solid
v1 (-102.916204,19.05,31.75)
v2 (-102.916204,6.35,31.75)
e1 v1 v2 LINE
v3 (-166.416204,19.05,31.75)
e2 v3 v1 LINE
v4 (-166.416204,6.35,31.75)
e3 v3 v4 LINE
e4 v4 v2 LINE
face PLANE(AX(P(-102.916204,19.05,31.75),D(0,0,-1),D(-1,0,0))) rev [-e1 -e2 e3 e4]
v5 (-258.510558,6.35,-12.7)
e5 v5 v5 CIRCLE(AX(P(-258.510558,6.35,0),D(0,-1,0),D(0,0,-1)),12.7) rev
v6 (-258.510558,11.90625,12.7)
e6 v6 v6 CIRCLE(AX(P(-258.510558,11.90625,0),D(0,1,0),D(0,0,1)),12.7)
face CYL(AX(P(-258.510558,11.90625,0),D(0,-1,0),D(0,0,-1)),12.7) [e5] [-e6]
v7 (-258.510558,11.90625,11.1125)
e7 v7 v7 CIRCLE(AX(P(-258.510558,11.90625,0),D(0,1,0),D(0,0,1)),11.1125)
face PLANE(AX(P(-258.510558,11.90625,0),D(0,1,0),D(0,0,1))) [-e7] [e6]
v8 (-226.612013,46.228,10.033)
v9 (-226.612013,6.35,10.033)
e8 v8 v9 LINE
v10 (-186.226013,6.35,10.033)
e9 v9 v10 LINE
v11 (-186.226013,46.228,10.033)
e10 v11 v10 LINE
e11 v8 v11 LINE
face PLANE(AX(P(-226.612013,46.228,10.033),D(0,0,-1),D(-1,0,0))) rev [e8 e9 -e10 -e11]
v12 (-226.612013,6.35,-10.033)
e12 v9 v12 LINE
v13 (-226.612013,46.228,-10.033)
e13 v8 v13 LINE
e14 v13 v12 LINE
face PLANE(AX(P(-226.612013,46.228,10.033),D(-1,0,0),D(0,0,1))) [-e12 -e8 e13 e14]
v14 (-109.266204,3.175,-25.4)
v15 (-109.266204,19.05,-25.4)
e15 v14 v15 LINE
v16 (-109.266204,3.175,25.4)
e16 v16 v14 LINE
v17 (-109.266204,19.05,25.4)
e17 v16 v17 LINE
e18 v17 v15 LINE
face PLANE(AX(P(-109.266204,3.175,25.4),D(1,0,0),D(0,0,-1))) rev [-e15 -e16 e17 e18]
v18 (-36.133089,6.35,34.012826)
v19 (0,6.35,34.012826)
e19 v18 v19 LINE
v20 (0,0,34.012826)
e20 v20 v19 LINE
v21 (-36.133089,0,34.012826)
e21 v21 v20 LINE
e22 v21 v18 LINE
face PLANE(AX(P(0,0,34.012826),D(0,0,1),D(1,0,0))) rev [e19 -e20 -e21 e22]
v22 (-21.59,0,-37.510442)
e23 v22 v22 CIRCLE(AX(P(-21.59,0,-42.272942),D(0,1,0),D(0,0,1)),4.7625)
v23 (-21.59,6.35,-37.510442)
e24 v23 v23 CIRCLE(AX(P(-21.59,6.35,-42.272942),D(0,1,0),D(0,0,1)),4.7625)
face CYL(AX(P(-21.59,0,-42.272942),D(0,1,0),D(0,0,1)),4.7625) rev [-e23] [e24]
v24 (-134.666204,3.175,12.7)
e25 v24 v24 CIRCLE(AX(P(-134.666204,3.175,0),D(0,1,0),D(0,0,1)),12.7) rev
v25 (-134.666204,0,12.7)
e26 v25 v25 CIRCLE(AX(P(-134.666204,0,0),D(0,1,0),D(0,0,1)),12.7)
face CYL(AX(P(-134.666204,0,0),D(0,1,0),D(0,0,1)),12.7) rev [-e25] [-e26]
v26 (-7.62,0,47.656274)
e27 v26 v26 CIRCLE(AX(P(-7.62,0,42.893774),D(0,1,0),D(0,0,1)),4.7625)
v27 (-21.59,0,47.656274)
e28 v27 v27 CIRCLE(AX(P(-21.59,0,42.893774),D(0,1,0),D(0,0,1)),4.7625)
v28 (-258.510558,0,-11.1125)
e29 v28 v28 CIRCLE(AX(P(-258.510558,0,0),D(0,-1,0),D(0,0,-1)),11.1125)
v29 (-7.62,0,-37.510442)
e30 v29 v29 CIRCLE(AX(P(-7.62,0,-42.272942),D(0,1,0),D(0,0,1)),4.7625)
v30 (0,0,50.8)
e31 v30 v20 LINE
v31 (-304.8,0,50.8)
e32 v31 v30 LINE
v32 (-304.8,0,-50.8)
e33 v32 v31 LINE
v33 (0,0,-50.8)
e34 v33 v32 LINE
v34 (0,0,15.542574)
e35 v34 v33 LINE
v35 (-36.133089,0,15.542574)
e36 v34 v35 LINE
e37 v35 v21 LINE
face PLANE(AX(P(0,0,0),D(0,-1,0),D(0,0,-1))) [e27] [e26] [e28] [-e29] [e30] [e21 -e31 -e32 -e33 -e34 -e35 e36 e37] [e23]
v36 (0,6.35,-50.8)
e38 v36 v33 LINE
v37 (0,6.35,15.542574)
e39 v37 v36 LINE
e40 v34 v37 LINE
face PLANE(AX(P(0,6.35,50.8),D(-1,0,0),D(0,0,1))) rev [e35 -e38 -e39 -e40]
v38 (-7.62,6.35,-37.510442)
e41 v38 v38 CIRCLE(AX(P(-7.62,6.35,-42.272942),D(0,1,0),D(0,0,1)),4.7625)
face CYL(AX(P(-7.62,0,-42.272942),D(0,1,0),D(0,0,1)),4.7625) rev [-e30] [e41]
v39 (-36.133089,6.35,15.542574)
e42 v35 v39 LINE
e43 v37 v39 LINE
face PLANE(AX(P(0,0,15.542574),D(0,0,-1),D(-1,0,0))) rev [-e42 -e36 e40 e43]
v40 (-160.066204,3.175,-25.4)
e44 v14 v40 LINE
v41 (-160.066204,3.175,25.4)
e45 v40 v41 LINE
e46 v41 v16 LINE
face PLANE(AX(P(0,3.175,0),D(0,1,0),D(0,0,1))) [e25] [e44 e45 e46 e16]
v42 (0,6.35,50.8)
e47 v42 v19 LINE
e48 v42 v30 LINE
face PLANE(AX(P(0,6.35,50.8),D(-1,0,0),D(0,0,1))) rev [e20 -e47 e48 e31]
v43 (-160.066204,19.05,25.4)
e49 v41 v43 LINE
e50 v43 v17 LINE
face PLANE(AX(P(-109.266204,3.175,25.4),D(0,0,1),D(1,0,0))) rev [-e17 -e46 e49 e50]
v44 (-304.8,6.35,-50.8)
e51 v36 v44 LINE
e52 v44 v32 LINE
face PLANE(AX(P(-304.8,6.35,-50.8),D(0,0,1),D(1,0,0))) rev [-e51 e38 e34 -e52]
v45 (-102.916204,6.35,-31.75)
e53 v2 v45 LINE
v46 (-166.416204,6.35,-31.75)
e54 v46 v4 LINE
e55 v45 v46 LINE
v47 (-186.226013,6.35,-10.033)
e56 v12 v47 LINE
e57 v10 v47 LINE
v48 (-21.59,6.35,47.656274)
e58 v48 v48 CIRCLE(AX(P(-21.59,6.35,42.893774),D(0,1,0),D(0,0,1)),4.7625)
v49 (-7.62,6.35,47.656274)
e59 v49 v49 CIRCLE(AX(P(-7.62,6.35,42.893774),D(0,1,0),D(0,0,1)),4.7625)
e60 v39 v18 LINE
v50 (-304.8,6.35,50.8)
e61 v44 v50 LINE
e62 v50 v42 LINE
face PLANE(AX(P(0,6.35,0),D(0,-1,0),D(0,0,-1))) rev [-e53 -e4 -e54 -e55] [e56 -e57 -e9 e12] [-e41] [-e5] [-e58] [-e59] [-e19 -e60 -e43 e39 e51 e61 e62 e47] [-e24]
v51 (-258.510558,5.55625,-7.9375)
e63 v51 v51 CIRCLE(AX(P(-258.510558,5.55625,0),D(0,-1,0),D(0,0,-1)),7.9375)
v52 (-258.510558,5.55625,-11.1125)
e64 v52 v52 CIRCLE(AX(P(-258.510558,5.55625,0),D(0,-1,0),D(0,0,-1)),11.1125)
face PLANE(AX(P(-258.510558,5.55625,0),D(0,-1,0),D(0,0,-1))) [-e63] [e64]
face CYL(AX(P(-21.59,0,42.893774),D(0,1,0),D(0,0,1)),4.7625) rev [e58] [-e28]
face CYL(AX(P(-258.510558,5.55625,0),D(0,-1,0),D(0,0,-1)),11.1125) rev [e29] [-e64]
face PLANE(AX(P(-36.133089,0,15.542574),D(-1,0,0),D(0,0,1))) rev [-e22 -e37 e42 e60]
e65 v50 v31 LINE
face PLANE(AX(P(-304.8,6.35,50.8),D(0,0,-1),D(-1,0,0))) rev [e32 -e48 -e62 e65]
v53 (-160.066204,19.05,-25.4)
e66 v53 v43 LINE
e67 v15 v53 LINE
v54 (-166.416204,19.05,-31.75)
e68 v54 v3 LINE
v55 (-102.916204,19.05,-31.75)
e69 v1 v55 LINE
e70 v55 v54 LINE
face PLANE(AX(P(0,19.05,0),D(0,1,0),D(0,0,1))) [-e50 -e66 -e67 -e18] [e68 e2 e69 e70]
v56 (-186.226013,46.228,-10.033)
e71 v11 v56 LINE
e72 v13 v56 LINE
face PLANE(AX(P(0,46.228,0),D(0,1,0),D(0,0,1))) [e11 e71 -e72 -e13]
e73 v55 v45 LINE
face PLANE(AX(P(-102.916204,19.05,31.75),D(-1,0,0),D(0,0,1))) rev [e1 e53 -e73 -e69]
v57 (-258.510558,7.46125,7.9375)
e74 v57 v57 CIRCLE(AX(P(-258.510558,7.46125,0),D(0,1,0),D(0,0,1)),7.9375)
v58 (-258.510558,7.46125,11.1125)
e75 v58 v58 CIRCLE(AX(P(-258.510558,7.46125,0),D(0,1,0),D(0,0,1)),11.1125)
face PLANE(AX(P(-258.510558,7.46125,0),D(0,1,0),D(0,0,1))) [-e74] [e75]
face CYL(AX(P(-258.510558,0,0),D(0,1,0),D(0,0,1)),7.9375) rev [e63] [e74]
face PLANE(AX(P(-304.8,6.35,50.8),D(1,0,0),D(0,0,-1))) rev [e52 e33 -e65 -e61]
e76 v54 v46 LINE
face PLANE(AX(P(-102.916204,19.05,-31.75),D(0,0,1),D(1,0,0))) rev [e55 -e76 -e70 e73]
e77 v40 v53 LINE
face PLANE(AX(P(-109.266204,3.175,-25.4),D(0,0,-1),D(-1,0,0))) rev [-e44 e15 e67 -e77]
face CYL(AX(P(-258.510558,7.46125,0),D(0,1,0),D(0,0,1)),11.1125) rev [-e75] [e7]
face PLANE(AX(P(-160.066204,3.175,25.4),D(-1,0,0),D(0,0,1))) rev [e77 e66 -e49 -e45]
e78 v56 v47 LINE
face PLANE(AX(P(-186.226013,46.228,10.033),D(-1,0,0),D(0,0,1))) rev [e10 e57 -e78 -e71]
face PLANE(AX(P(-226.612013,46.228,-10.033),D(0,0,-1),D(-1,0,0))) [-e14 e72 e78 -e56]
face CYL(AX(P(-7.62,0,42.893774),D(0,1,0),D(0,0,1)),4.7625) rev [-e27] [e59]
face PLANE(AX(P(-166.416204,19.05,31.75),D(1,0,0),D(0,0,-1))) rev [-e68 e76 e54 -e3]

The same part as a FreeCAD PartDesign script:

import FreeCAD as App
import Part
import Sketcher
Q = App.Units.Quantity


def add_polygon(sketch, points):
    """Adds a closed chain of lines whose ends are joined by coincident constraints."""
    first, n = sketch.GeometryCount, len(points)
    for a, b in zip(points, points[1:] + points[:1]):
        sketch.addGeometry(Part.LineSegment(App.Vector(*a, 0), App.Vector(*b, 0)), False)
    for i in range(n):
        sketch.addConstraint(Sketcher.Constraint("Coincident", first + i, 2, first + (i + 1) % n, 1))

doc = App.newDocument("Part")
body = doc.addObject("PartDesign::Body", "Body")

# Sketch on XZ plane
sketch1 = body.newObject("Sketcher::SketchObject", "Sketch")
sketch1.AttachmentSupport = (doc.getObject("XZ_Plane"), [""])
sketch1.MapMode = "FlatFace"
add_polygon(sketch1, [(-305, -51), (-305, 51), (0, 51), (0, -51)])  # lines 0-3
sketch1.addConstraint(Sketcher.Constraint("Vertical", 0))
sketch1.addConstraint(Sketcher.Constraint("Horizontal", 1))
sketch1.addConstraint(Sketcher.Constraint("Vertical", 2))
sketch1.addConstraint(Sketcher.Constraint("Horizontal", 3))
sketch1.addConstraint(Sketcher.Constraint("Symmetric", 1, 2, 2, 2, -1, 1))
sketch1.addConstraint(Sketcher.Constraint("DistanceX", 1, 1, 1, 2, Q("12 in")))
sketch1.addConstraint(Sketcher.Constraint("DistanceY", 0, 1, 0, 2, Q("4 in")))
pad1 = body.newObject("PartDesign::Pad", "Pad")
pad1.Profile = sketch1
pad1.Length = Q("0.25 in")
pad1.Reversed = True

# Sketch on XZ plane
sketch2 = body.newObject("Sketcher::SketchObject", "Sketch001")
sketch2.AttachmentSupport = (doc.getObject("XZ_Plane"), [""])
sketch2.MapMode = "FlatFace"
sketch2.AttachmentOffset = App.Placement(App.Vector(0, 0, -0.25 * 25.4), App.Rotation())
sketch2.addGeometry(Part.Circle(App.Vector(-259, 0, 0), App.Vector(0, 0, 1), 13), False)
sketch2.addConstraint(Sketcher.Constraint("PointOnObject", 0, 3, -1))
sketch2.addConstraint(Sketcher.Constraint("Diameter", 0, Q("1 in")))
sketch2.addConstraint(Sketcher.Constraint("DistanceX", 0, 3, -1, 1, 258.510558))
pad2 = body.newObject("PartDesign::Pad", "Pad001")
pad2.Profile = sketch2
pad2.Length = Q("0.21875 in")
pad2.Reversed = True

# Sketch on XZ plane
sketch3 = body.newObject("Sketcher::SketchObject", "Sketch002")
sketch3.AttachmentSupport = (doc.getObject("XZ_Plane"), [""])
sketch3.MapMode = "FlatFace"
sketch3.AttachmentOffset = App.Placement(App.Vector(0, 0, -0.46875 * 25.4), App.Rotation())
sketch3.addGeometry(Part.Circle(App.Vector(-259, 0, 0), App.Vector(0, 0, 1), 11), False)
sketch3.addConstraint(Sketcher.Constraint("PointOnObject", 0, 3, -1))
sketch3.addConstraint(Sketcher.Constraint("Diameter", 0, Q("0.875 in")))
sketch3.addConstraint(Sketcher.Constraint("DistanceX", 0, 3, -1, 1, 258.510558))
pocket1 = body.newObject("PartDesign::Pocket", "Pocket")
pocket1.Profile = sketch3
pocket1.Length = Q("0.175 in")
pocket1.Reversed = True

# Sketch on XZ plane
sketch4 = body.newObject("Sketcher::SketchObject", "Sketch003")
sketch4.AttachmentSupport = (doc.getObject("XZ_Plane"), [""])
sketch4.MapMode = "FlatFace"
sketch4.AttachmentOffset = App.Placement(App.Vector(0, 0, -0.21875 * 25.4), App.Rotation())
sketch4.addGeometry(Part.Circle(App.Vector(-259, 0, 0), App.Vector(0, 0, 1), 11), False)
sketch4.addConstraint(Sketcher.Constraint("PointOnObject", 0, 3, -1))
sketch4.addConstraint(Sketcher.Constraint("Diameter", 0, Q("0.875 in")))
sketch4.addConstraint(Sketcher.Constraint("DistanceX", 0, 3, -1, 1, 258.510558))
pocket2 = body.newObject("PartDesign::Pocket", "Pocket001")
pocket2.Profile = sketch4
pocket2.Length = Q("0.21875 in")
pocket2.Reversed = True

# Sketch on XZ plane
sketch5 = body.newObject("Sketcher::SketchObject", "Sketch004")
sketch5.AttachmentSupport = (doc.getObject("XZ_Plane"), [""])
sketch5.MapMode = "FlatFace"
sketch5.AttachmentOffset = App.Placement(App.Vector(0, 0, -7.46125), App.Rotation())
sketch5.addGeometry(Part.Circle(App.Vector(-259, 0, 0), App.Vector(0, 0, 1), 8), False)
sketch5.addConstraint(Sketcher.Constraint("PointOnObject", 0, 3, -1))
sketch5.addConstraint(Sketcher.Constraint("Diameter", 0, Q("0.625 in")))
sketch5.addConstraint(Sketcher.Constraint("DistanceX", 0, 3, -1, 1, 258.510558))
pocket3 = body.newObject("PartDesign::Pocket", "Pocket002")
pocket3.Profile = sketch5
pocket3.Type = "ThroughAll"
pocket3.Reversed = True

# Sketch on XZ plane
sketch6 = body.newObject("Sketcher::SketchObject", "Sketch005")
sketch6.AttachmentSupport = (doc.getObject("XZ_Plane"), [""])
sketch6.MapMode = "FlatFace"
sketch6.AttachmentOffset = App.Placement(App.Vector(0, 0, -0.25 * 25.4), App.Rotation())
sketch6.addGeometry(Part.Circle(App.Vector(-135, 0, 0), App.Vector(0, 0, 1), 13), False)
sketch6.addConstraint(Sketcher.Constraint("PointOnObject", 0, 3, -1))
sketch6.addConstraint(Sketcher.Constraint("Diameter", 0, Q("1 in")))
sketch6.addConstraint(Sketcher.Constraint("DistanceX", 0, 3, -1, 1, 134.666204))
pocket4 = body.newObject("PartDesign::Pocket", "Pocket003")
pocket4.Profile = sketch6
pocket4.Type = "ThroughAll"
pocket4.Reversed = True

# Sketch on XZ plane
sketch7 = body.newObject("Sketcher::SketchObject", "Sketch006")
sketch7.AttachmentSupport = (doc.getObject("XZ_Plane"), [""])
sketch7.MapMode = "FlatFace"
sketch7.AttachmentOffset = App.Placement(App.Vector(0, 0, -0.25 * 25.4), App.Rotation())
add_polygon(sketch7, [(-166, -32), (-166, 32), (-103, 32), (-103, -32)])  # lines 0-3
sketch7.addConstraint(Sketcher.Constraint("Vertical", 0))
sketch7.addConstraint(Sketcher.Constraint("Horizontal", 1))
sketch7.addConstraint(Sketcher.Constraint("Vertical", 2))
sketch7.addConstraint(Sketcher.Constraint("Horizontal", 3))
sketch7.addConstraint(Sketcher.Constraint("Equal", 3, 0))
sketch7.addConstraint(Sketcher.Constraint("DistanceX", 1, 1, 1, 2, Q("2.5 in")))
sketch7.addConstraint(Sketcher.Constraint("DistanceY", -1, 1, 0, 2, Q("1.25 in")))
sketch7.addConstraint(Sketcher.Constraint("DistanceX", 0, 2, -1, 1, 166.416204))
pad3 = body.newObject("PartDesign::Pad", "Pad002")
pad3.Profile = sketch7
pad3.Length = Q("0.5 in")
pad3.Reversed = True

# Sketch on XZ plane
sketch8 = body.newObject("Sketcher::SketchObject", "Sketch007")
sketch8.AttachmentSupport = (doc.getObject("XZ_Plane"), [""])
sketch8.MapMode = "FlatFace"
sketch8.AttachmentOffset = App.Placement(App.Vector(0, 0, -0.75 * 25.4), App.Rotation())
add_polygon(sketch8, [(-160, -25), (-160, 25), (-109, 25), (-109, -25)])  # lines 0-3
sketch8.addConstraint(Sketcher.Constraint("Vertical", 0))
sketch8.addConstraint(Sketcher.Constraint("Horizontal", 1))
sketch8.addConstraint(Sketcher.Constraint("Vertical", 2))
sketch8.addConstraint(Sketcher.Constraint("Horizontal", 3))
sketch8.addConstraint(Sketcher.Constraint("Equal", 3, 0))
sketch8.addConstraint(Sketcher.Constraint("DistanceX", 1, 1, 1, 2, Q("2 in")))
sketch8.addConstraint(Sketcher.Constraint("DistanceY", -1, 1, 0, 2, Q("1 in")))
sketch8.addConstraint(Sketcher.Constraint("DistanceX", 0, 2, -1, 1, 160.066204))
pocket5 = body.newObject("PartDesign::Pocket", "Pocket004")
pocket5.Profile = sketch8
pocket5.Length = Q("0.625 in")
pocket5.Reversed = True

# Sketch on XZ plane
sketch9 = body.newObject("Sketcher::SketchObject", "Sketch008")
sketch9.AttachmentSupport = (doc.getObject("XZ_Plane"), [""])
sketch9.MapMode = "FlatFace"
sketch9.AttachmentOffset = App.Placement(App.Vector(0, 0, -0.25 * 25.4), App.Rotation())
add_polygon(sketch9, [(-227, -10), (-227, 10), (-186, 10), (-186, -10)])  # lines 0-3
sketch9.addConstraint(Sketcher.Constraint("Vertical", 0))
sketch9.addConstraint(Sketcher.Constraint("Horizontal", 1))
sketch9.addConstraint(Sketcher.Constraint("Vertical", 2))
sketch9.addConstraint(Sketcher.Constraint("Horizontal", 3))
sketch9.addConstraint(Sketcher.Constraint("DistanceX", 1, 1, 1, 2, Q("1.59 in")))
sketch9.addConstraint(Sketcher.Constraint("DistanceY", 0, 1, 0, 2, Q("0.79 in")))
sketch9.addConstraint(Sketcher.Constraint("DistanceY", -1, 1, 0, 2, Q("0.395 in")))
sketch9.addConstraint(Sketcher.Constraint("DistanceX", 0, 2, -1, 1, 226.612013))
pad4 = body.newObject("PartDesign::Pad", "Pad003")
pad4.Profile = sketch9
pad4.Length = Q("1.57 in")
pad4.Reversed = True

# Sketch on XZ plane
sketch10 = body.newObject("Sketcher::SketchObject", "Sketch009")
sketch10.AttachmentSupport = (doc.getObject("XZ_Plane"), [""])
sketch10.MapMode = "FlatFace"
sketch10.AttachmentOffset = App.Placement(App.Vector(0, 0, -0.25 * 25.4), App.Rotation())
sketch10.addGeometry(Part.Circle(App.Vector(-7.6, 42.9, 0), App.Vector(0, 0, 1), 4.8), False)
sketch10.addGeometry(Part.Circle(App.Vector(-21.6, 42.9, 0), App.Vector(0, 0, 1), 4.8), False)
sketch10.addGeometry(Part.Circle(App.Vector(-7.6, -42.3, 0), App.Vector(0, 0, 1), 4.8), False)
sketch10.addGeometry(Part.Circle(App.Vector(-21.6, -42.3, 0), App.Vector(0, 0, 1), 4.8), False)
sketch10.addConstraint(Sketcher.Constraint("Equal", 0, 1))
sketch10.addConstraint(Sketcher.Constraint("Equal", 1, 2))
sketch10.addConstraint(Sketcher.Constraint("Equal", 2, 3))
sketch10.addConstraint(Sketcher.Constraint("Horizontal", 0, 3, 1, 3))
sketch10.addConstraint(Sketcher.Constraint("Horizontal", 2, 3, 3, 3))
sketch10.addConstraint(Sketcher.Constraint("Vertical", 0, 3, 2, 3))
sketch10.addConstraint(Sketcher.Constraint("Vertical", 1, 3, 3, 3))
sketch10.addConstraint(Sketcher.Constraint("Diameter", 0, Q("0.375 in")))
sketch10.addConstraint(Sketcher.Constraint("DistanceX", 0, 3, -1, 1, Q("0.3 in")))
sketch10.addConstraint(Sketcher.Constraint("DistanceX", 1, 3, -1, 1, Q("0.85 in")))
sketch10.addConstraint(Sketcher.Constraint("DistanceY", 2, 3, -1, 1, 42.272942))
sketch10.addConstraint(Sketcher.Constraint("DistanceY", -1, 1, 0, 3, 42.893774))
pocket6 = body.newObject("PartDesign::Pocket", "Pocket005")
pocket6.Profile = sketch10
pocket6.Length = Q("0.25 in")
pocket6.Reversed = True

# Sketch on XZ plane
sketch11 = body.newObject("Sketcher::SketchObject", "Sketch010")
sketch11.AttachmentSupport = (doc.getObject("XZ_Plane"), [""])
sketch11.MapMode = "FlatFace"
sketch11.AttachmentOffset = App.Placement(App.Vector(0, 0, -0.25 * 25.4), App.Rotation())
add_polygon(sketch11, [(-36, 16), (-36, 34), (0, 34), (0, 16)])  # lines 0-3
sketch11.addConstraint(Sketcher.Constraint("Vertical", 0))
sketch11.addConstraint(Sketcher.Constraint("Horizontal", 1))
sketch11.addConstraint(Sketcher.Constraint("Vertical", 2))
sketch11.addConstraint(Sketcher.Constraint("Horizontal", 3))
sketch11.addConstraint(Sketcher.Constraint("PointOnObject", 1, 2, -2))
sketch11.addConstraint(Sketcher.Constraint("DistanceX", 1, 1, 1, 2, 36.133089))
sketch11.addConstraint(Sketcher.Constraint("DistanceY", 0, 1, 0, 2, 18.470251))
sketch11.addConstraint(Sketcher.Constraint("DistanceY", -1, 1, 0, 2, 34.012826))
pocket7 = body.newObject("PartDesign::Pocket", "Pocket006")
pocket7.Profile = sketch11
pocket7.Type = "ThroughAll"
pocket7.Reversed = True

doc.recompute()
